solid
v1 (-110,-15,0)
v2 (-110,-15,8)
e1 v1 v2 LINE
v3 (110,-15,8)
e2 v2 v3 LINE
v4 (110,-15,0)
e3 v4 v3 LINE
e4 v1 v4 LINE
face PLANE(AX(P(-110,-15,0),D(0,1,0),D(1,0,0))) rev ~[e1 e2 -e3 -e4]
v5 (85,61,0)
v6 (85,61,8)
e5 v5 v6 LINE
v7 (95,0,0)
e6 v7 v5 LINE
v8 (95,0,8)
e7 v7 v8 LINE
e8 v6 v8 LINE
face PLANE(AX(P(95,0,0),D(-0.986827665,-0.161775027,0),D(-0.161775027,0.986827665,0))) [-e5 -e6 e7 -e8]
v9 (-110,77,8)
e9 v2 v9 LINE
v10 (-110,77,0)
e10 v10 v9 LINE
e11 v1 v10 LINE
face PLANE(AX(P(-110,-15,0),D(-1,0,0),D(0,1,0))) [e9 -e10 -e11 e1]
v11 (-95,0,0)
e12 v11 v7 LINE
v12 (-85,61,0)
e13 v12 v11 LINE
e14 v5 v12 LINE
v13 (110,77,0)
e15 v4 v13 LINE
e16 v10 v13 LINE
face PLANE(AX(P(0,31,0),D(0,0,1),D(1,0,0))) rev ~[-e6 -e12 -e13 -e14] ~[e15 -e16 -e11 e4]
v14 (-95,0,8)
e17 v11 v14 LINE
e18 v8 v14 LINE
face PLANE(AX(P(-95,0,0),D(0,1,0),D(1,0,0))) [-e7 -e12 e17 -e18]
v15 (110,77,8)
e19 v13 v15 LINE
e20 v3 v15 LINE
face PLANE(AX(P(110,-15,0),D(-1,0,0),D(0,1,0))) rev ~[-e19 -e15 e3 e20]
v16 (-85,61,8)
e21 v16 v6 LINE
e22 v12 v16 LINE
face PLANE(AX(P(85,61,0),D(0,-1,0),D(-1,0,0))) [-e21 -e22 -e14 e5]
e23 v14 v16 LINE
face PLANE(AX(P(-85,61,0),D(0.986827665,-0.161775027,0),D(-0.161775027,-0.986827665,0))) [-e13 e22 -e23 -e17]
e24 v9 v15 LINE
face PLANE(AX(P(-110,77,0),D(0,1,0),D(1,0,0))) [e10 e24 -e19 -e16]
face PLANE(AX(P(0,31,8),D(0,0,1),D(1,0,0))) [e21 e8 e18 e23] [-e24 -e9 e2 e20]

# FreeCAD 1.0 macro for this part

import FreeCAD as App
import Part
import Sketcher
Q = App.Units.Quantity

doc = App.newDocument("Part")
body = doc.addObject("PartDesign::Body", "Body")

# Sketch on XY plane
sketch1 = body.newObject("Sketcher::SketchObject", "Sketch")
sketch1.AttachmentSupport = (doc.getObject("XY_Plane"), [""])
sketch1.MapMode = "FlatFace"
sketch1.addGeometry(Part.LineSegment(App.Vector(-95, 0, 0), App.Vector(95, 0, 0)), False)
sketch1.addGeometry(Part.LineSegment(App.Vector(95, 0, 0), App.Vector(85, 61, 0)), False)
sketch1.addGeometry(Part.LineSegment(App.Vector(85, 61, 0), App.Vector(-85, 61, 0)), False)
sketch1.addGeometry(Part.LineSegment(App.Vector(-85, 61, 0), App.Vector(-95, 0, 0)), False)
sketch1.addConstraint(Sketcher.Constraint("Coincident", 0, 2, 1, 1))
sketch1.addConstraint(Sketcher.Constraint("Coincident", 1, 2, 2, 1))
sketch1.addConstraint(Sketcher.Constraint("Coincident", 2, 2, 3, 1))
sketch1.addConstraint(Sketcher.Constraint("Coincident", 3, 2, 0, 1))
sketch1.addConstraint(Sketcher.Constraint("Horizontal", 0))
sketch1.addConstraint(Sketcher.Constraint("Horizontal", 2))
sketch1.addConstraint(Sketcher.Constraint("Symmetric", 0, 2, 3, 2, -1, 1))
sketch1.addConstraint(Sketcher.Constraint("Equal", 1, 3))
sketch1.addConstraint(Sketcher.Constraint("DistanceX", 0, 1, 0, 2, Q("190 mm")))
sketch1.addConstraint(Sketcher.Constraint("DistanceX", 2, 2, 2, 1, Q("170 mm")))
sketch1.addConstraint(Sketcher.Constraint("DistanceY", -1, 1, 1, 2, Q("61 mm")))
pad1 = body.newObject("PartDesign::Pad", "Pad")
pad1.Profile = sketch1
pad1.Length = 10
body2 = doc.addObject("PartDesign::Body", "Body001")

# Sketch on XY plane
sketch2 = body2.newObject("Sketcher::SketchObject", "Sketch001")
sketch2.AttachmentSupport = (doc.getObject("XY_Plane001"), [""])
sketch2.MapMode = "FlatFace"
sketch2.addGeometry(Part.LineSegment(App.Vector(-110, 77, 0), App.Vector(-110, -15, 0)), False)
sketch2.addGeometry(Part.LineSegment(App.Vector(-110, -15, 0), App.Vector(110, -15, 0)), False)
sketch2.addGeometry(Part.LineSegment(App.Vector(110, -15, 0), App.Vector(110, 77, 0)), False)
sketch2.addGeometry(Part.LineSegment(App.Vector(110, 77, 0), App.Vector(-110, 77, 0)), False)
sketch2.addConstraint(Sketcher.Constraint("Coincident", 0, 2, 1, 1))
sketch2.addConstraint(Sketcher.Constraint("Coincident", 1, 2, 2, 1))
sketch2.addConstraint(Sketcher.Constraint("Coincident", 2, 2, 3, 1))
sketch2.addConstraint(Sketcher.Constraint("Coincident", 3, 2, 0, 1))
sketch2.addConstraint(Sketcher.Constraint("Vertical", 0))
sketch2.addConstraint(Sketcher.Constraint("Horizontal", 1))
sketch2.addConstraint(Sketcher.Constraint("Vertical", 2))
sketch2.addConstraint(Sketcher.Constraint("Horizontal", 3))
sketch2.addConstraint(Sketcher.Constraint("DistanceX", 1, 1, 1, 2, Q("220 mm")))
sketch2.addConstraint(Sketcher.Constraint("DistanceY", 0, 2, 0, 1, Q("92 mm")))
sketch2.addConstraint(Sketcher.Constraint("DistanceX", 0, 2, -1, 1, Q("110 mm")))
sketch2.addConstraint(Sketcher.Constraint("DistanceY", 0, 2, -1, 1, Q("15 mm")))
pad2 = body2.newObject("PartDesign::Pad", "Pad001")
pad2.Profile = sketch2
pad2.Length = 8
doc.recompute()

boolean = body2.newObject("PartDesign::Boolean", "Boolean")
boolean.Type = "Cut"
boolean.addObjects([body])

doc.recompute()
